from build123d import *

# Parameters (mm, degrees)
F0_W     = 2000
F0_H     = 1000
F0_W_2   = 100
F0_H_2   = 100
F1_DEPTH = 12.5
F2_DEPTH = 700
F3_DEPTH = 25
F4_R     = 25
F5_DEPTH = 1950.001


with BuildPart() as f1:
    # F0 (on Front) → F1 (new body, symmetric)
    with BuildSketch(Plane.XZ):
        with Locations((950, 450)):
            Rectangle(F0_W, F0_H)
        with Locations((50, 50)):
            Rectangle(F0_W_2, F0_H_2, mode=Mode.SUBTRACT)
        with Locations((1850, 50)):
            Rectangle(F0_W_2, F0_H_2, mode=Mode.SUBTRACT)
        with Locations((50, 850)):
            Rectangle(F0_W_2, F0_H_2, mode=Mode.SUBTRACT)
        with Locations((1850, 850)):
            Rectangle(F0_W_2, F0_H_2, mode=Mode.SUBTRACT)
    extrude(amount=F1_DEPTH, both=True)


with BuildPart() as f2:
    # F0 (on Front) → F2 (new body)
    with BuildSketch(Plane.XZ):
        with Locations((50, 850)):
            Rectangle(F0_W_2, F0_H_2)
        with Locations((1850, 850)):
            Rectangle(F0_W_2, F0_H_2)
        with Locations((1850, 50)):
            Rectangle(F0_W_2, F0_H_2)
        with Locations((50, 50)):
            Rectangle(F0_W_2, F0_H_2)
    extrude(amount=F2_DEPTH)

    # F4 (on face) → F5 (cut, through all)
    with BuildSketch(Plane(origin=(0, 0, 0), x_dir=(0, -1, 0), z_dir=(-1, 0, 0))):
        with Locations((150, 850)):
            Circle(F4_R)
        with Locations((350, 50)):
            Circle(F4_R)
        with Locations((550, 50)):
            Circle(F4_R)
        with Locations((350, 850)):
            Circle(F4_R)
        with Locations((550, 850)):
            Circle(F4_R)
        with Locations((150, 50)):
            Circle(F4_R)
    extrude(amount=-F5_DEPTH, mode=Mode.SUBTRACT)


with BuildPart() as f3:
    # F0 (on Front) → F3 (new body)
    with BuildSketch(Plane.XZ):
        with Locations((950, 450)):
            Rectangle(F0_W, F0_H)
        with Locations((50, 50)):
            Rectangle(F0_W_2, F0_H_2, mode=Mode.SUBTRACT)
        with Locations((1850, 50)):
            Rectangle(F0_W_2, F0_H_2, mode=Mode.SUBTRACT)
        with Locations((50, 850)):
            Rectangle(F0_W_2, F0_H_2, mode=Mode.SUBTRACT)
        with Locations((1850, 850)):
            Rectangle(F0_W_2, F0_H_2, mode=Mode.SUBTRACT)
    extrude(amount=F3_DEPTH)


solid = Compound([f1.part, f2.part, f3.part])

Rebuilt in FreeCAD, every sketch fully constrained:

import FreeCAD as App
import Part
import Sketcher
from FreeCAD import Vector
Q = App.Units.Quantity


def add_polygon(sketch, points):
    """Adds a closed chain of lines whose ends are joined by coincident constraints."""
    first, n = sketch.GeometryCount, len(points)
    for a, b in zip(points, points[1:] + points[:1]):
        sketch.addGeometry(Part.LineSegment(App.Vector(*a, 0), App.Vector(*b, 0)), False)
    for i in range(n):
        sketch.addConstraint(Sketcher.Constraint("Coincident", first + i, 2, first + (i + 1) % n, 1))

doc = App.newDocument("Part")
body = doc.addObject("PartDesign::Body", "Body")

sketch1 = doc.addObject("Sketcher::SketchObject", "Sketch")
body.addObject(sketch1)
sketch1.AttachmentSupport = (doc.XZ_Plane, [""])
sketch1.MapMode = "FlatFace"
add_polygon(sketch1, [(-50, 950), (-50, -50), (1950, -50), (1950, 950)])
add_polygon(sketch1, [(100, 0), (0, 0), (0, 100), (100, 100)])
add_polygon(sketch1, [(1900, 0), (1800, 0), (1800, 100), (1900, 100)])
add_polygon(sketch1, [(100, 800), (0, 800), (0, 900), (100, 900)])
add_polygon(sketch1, [(1900, 800), (1800, 800), (1800, 900), (1900, 900)])
sketch1.addConstraint([
    Sketcher.Constraint("Vertical", 0),
    Sketcher.Constraint("Horizontal", 1),
    Sketcher.Constraint("Vertical", 2),
    Sketcher.Constraint("Horizontal", 3),
    Sketcher.Constraint("Horizontal", 4),
    Sketcher.Constraint("Vertical", 5),
    Sketcher.Constraint("Horizontal", 6),
    Sketcher.Constraint("Vertical", 7),
    Sketcher.Constraint("Horizontal", 8),
    Sketcher.Constraint("Vertical", 9),
    Sketcher.Constraint("Horizontal", 10),
    Sketcher.Constraint("Vertical", 11),
    Sketcher.Constraint("Horizontal", 12),
    Sketcher.Constraint("Vertical", 13),
    Sketcher.Constraint("Horizontal", 14),
    Sketcher.Constraint("Vertical", 15),
    Sketcher.Constraint("Horizontal", 16),
    Sketcher.Constraint("Vertical", 17),
    Sketcher.Constraint("Horizontal", 18),
    Sketcher.Constraint("Vertical", 19),
    Sketcher.Constraint("Coincident", 4, 2, -1, 1),
    Sketcher.Constraint("PointOnObject", 8, 2, -1),
    Sketcher.Constraint("PointOnObject", 12, 2, -2),
    Sketcher.Constraint("Horizontal", 6, 2, 9, 2),
    Sketcher.Constraint("Horizontal", 15, 2, 16, 2),
    Sketcher.Constraint("Horizontal", 14, 2, 17, 2),
    Sketcher.Constraint("Vertical", 7, 2, 14, 2),
    Sketcher.Constraint("Vertical", 9, 2, 16, 2),
    Sketcher.Constraint("Vertical", 11, 2, 18, 2),
    Sketcher.Constraint("Equal", 6, 8),
    Sketcher.Constraint("Equal", 18, 5),
    Sketcher.Constraint("Equal", 11, 13),
    Sketcher.Constraint("DistanceX", 1, 1, 1, 2, Q("2000 mm")),
    Sketcher.Constraint("DistanceX", 4, 2, 4, 1, Q("100 mm")),
    Sketcher.Constraint("DistanceY", 0, 2, 0, 1, Q("1000 mm")),
    Sketcher.Constraint("DistanceX", 0, 2, -1, 1, Q("50 mm")),
    Sketcher.Constraint("DistanceY", 0, 2, -1, 1, Q("50 mm")),
    Sketcher.Constraint("DistanceX", -1, 1, 8, 2, Q("1800 mm")),
    Sketcher.Constraint("DistanceY", -1, 1, 12, 2, Q("800 mm")),
])
pad1 = doc.addObject("PartDesign::Pad", "Pad")
body.addObject(pad1)
pad1.Profile = sketch1
pad1.Length = 25
pad1.Midplane = True
body2 = doc.addObject("PartDesign::Body", "Body001")
body2.AllowCompound = True

sketch2 = doc.addObject("Sketcher::SketchObject", "Sketch001")
body2.addObject(sketch2)
sketch2.AttachmentSupport = (doc.getObject("XZ_Plane001"), [""])
sketch2.MapMode = "FlatFace"
add_polygon(sketch2, [(0, 900), (0, 800), (100, 800), (100, 900)])
add_polygon(sketch2, [(1800, 900), (1800, 800), (1900, 800), (1900, 900)])
add_polygon(sketch2, [(1800, 100), (1800, 0), (1900, 0), (1900, 100)])
add_polygon(sketch2, [(0, 100), (0, 0), (100, 0), (100, 100)])
sketch2.addConstraint([
    Sketcher.Constraint("Vertical", 0),
    Sketcher.Constraint("Horizontal", 1),
    Sketcher.Constraint("Vertical", 2),
    Sketcher.Constraint("Horizontal", 3),
    Sketcher.Constraint("Vertical", 4),
    Sketcher.Constraint("Horizontal", 5),
    Sketcher.Constraint("Vertical", 6),
    Sketcher.Constraint("Horizontal", 7),
    Sketcher.Constraint("Vertical", 8),
    Sketcher.Constraint("Horizontal", 9),
    Sketcher.Constraint("Vertical", 10),
    Sketcher.Constraint("Horizontal", 11),
    Sketcher.Constraint("Vertical", 12),
    Sketcher.Constraint("Horizontal", 13),
    Sketcher.Constraint("Vertical", 14),
    Sketcher.Constraint("Horizontal", 15),
    Sketcher.Constraint("Coincident", 12, 2, -1, 1),
    Sketcher.Constraint("PointOnObject", 0, 2, -2),
    Sketcher.Constraint("PointOnObject", 8, 2, -1),
    Sketcher.Constraint("Horizontal", 1, 2, 4, 2),
    Sketcher.Constraint("Horizontal", 3, 2, 6, 2),
    Sketcher.Constraint("Horizontal", 11, 2, 14, 2),
    Sketcher.Constraint("Vertical", 7, 2, 8, 2),
    Sketcher.Constraint("Vertical", 6, 2, 9, 2),
    Sketcher.Constraint("Vertical", 2, 2, 13, 2),
    Sketcher.Constraint("Equal", 3, 5),
    Sketcher.Constraint("Equal", 15, 0),
    Sketcher.Constraint("Equal", 6, 8),
    Sketcher.Constraint("DistanceX", 1, 1, 1, 2, Q("100 mm")),
    Sketcher.Constraint("DistanceY", -1, 1, 0, 2, Q("800 mm")),
    Sketcher.Constraint("DistanceX", -1, 1, 4, 2, Q("1800 mm")),
])
pad2 = doc.addObject("PartDesign::Pad", "Pad001")
body2.addObject(pad2)
pad2.Profile = sketch2
pad2.Length = 700

sketch3 = doc.addObject("Sketcher::SketchObject", "Sketch002")
body2.addObject(sketch3)
sketch3.AttachmentSupport = (doc.getObject("YZ_Plane001"), [""])
sketch3.MapMode = "FlatFace"
sketch3.addGeometry([
    Part.Circle(Vector(-150, 850, 0), Vector(0, 0, 1), 25),
    Part.Circle(Vector(-350, 50, 0), Vector(0, 0, 1), 25),
    Part.Circle(Vector(-550, 50, 0), Vector(0, 0, 1), 25),
    Part.Circle(Vector(-350, 850, 0), Vector(0, 0, 1), 25),
    Part.Circle(Vector(-550, 850, 0), Vector(0, 0, 1), 25),
    Part.Circle(Vector(-150, 50, 0), Vector(0, 0, 1), 25),
], False)
sketch3.addConstraint([
    Sketcher.Constraint("Equal", 0, 1),
    Sketcher.Constraint("Equal", 1, 2),
    Sketcher.Constraint("Equal", 2, 3),
    Sketcher.Constraint("Equal", 3, 4),
    Sketcher.Constraint("Equal", 4, 5),
    Sketcher.Constraint("Horizontal", 1, 3, 2, 3),
    Sketcher.Constraint("Horizontal", 0, 3, 3, 3),
    Sketcher.Constraint("Horizontal", 3, 3, 4, 3),
    Sketcher.Constraint("Horizontal", 2, 3, 5, 3),
    Sketcher.Constraint("Vertical", 1, 3, 3, 3),
    Sketcher.Constraint("Vertical", 2, 3, 4, 3),
    Sketcher.Constraint("Vertical", 0, 3, 5, 3),
    Sketcher.Constraint("Diameter", 0, Q("50 mm")),
    Sketcher.Constraint("DistanceX", 0, 3, -1, 1, Q("150 mm")),
    Sketcher.Constraint("DistanceY", -1, 1, 0, 3, Q("850 mm")),
    Sketcher.Constraint("DistanceX", 1, 3, -1, 1, Q("350 mm")),
    Sketcher.Constraint("DistanceY", -1, 1, 1, 3, Q("50 mm")),
    Sketcher.Constraint("DistanceX", 2, 3, -1, 1, Q("550 mm")),
])
pocket1 = doc.addObject("PartDesign::Pocket", "Pocket")
body2.addObject(pocket1)
pocket1.Profile = sketch3
pocket1.Type = "ThroughAll"
pocket1.Reversed = True
body3 = doc.addObject("PartDesign::Body", "Body002")

sketch4 = doc.addObject("Sketcher::SketchObject", "Sketch003")
body3.addObject(sketch4)
sketch4.AttachmentSupport = (doc.getObject("XZ_Plane002"), [""])
sketch4.MapMode = "FlatFace"
add_polygon(sketch4, [(-50, 950), (-50, -50), (1950, -50), (1950, 950)])
add_polygon(sketch4, [(100, 0), (0, 0), (0, 100), (100, 100)])
add_polygon(sketch4, [(1900, 0), (1800, 0), (1800, 100), (1900, 100)])
add_polygon(sketch4, [(100, 800), (0, 800), (0, 900), (100, 900)])
add_polygon(sketch4, [(1900, 800), (1800, 800), (1800, 900), (1900, 900)])
sketch4.addConstraint([
    Sketcher.Constraint("Vertical", 0),
    Sketcher.Constraint("Horizontal", 1),
    Sketcher.Constraint("Vertical", 2),
    Sketcher.Constraint("Horizontal", 3),
    Sketcher.Constraint("Horizontal", 4),
    Sketcher.Constraint("Vertical", 5),
    Sketcher.Constraint("Horizontal", 6),
    Sketcher.Constraint("Vertical", 7),
    Sketcher.Constraint("Horizontal", 8),
    Sketcher.Constraint("Vertical", 9),
    Sketcher.Constraint("Horizontal", 10),
    Sketcher.Constraint("Vertical", 11),
    Sketcher.Constraint("Horizontal", 12),
    Sketcher.Constraint("Vertical", 13),
    Sketcher.Constraint("Horizontal", 14),
    Sketcher.Constraint("Vertical", 15),
    Sketcher.Constraint("Horizontal", 16),
    Sketcher.Constraint("Vertical", 17),
    Sketcher.Constraint("Horizontal", 18),
    Sketcher.Constraint("Vertical", 19),
    Sketcher.Constraint("Coincident", 4, 2, -1, 1),
    Sketcher.Constraint("PointOnObject", 8, 2, -1),
    Sketcher.Constraint("PointOnObject", 12, 2, -2),
    Sketcher.Constraint("Horizontal", 6, 2, 9, 2),
    Sketcher.Constraint("Horizontal", 15, 2, 16, 2),
    Sketcher.Constraint("Horizontal", 14, 2, 17, 2),
    Sketcher.Constraint("Vertical", 7, 2, 14, 2),
    Sketcher.Constraint("Vertical", 9, 2, 16, 2),
    Sketcher.Constraint("Vertical", 11, 2, 18, 2),
    Sketcher.Constraint("Equal", 6, 8),
    Sketcher.Constraint("Equal", 18, 5),
    Sketcher.Constraint("Equal", 11, 13),
    Sketcher.Constraint("DistanceX", 1, 1, 1, 2, Q("2000 mm")),
    Sketcher.Constraint("DistanceX", 4, 2, 4, 1, Q("100 mm")),
    Sketcher.Constraint("DistanceY", 0, 2, 0, 1, Q("1000 mm")),
    Sketcher.Constraint("DistanceX", 0, 2, -1, 1, Q("50 mm")),
    Sketcher.Constraint("DistanceY", 0, 2, -1, 1, Q("50 mm")),
    Sketcher.Constraint("DistanceX", -1, 1, 8, 2, Q("1800 mm")),
    Sketcher.Constraint("DistanceY", -1, 1, 12, 2, Q("800 mm")),
])
pad3 = doc.addObject("PartDesign::Pad", "Pad002")
body3.addObject(pad3)
pad3.Profile = sketch4
pad3.Length = 25

doc.recompute()
